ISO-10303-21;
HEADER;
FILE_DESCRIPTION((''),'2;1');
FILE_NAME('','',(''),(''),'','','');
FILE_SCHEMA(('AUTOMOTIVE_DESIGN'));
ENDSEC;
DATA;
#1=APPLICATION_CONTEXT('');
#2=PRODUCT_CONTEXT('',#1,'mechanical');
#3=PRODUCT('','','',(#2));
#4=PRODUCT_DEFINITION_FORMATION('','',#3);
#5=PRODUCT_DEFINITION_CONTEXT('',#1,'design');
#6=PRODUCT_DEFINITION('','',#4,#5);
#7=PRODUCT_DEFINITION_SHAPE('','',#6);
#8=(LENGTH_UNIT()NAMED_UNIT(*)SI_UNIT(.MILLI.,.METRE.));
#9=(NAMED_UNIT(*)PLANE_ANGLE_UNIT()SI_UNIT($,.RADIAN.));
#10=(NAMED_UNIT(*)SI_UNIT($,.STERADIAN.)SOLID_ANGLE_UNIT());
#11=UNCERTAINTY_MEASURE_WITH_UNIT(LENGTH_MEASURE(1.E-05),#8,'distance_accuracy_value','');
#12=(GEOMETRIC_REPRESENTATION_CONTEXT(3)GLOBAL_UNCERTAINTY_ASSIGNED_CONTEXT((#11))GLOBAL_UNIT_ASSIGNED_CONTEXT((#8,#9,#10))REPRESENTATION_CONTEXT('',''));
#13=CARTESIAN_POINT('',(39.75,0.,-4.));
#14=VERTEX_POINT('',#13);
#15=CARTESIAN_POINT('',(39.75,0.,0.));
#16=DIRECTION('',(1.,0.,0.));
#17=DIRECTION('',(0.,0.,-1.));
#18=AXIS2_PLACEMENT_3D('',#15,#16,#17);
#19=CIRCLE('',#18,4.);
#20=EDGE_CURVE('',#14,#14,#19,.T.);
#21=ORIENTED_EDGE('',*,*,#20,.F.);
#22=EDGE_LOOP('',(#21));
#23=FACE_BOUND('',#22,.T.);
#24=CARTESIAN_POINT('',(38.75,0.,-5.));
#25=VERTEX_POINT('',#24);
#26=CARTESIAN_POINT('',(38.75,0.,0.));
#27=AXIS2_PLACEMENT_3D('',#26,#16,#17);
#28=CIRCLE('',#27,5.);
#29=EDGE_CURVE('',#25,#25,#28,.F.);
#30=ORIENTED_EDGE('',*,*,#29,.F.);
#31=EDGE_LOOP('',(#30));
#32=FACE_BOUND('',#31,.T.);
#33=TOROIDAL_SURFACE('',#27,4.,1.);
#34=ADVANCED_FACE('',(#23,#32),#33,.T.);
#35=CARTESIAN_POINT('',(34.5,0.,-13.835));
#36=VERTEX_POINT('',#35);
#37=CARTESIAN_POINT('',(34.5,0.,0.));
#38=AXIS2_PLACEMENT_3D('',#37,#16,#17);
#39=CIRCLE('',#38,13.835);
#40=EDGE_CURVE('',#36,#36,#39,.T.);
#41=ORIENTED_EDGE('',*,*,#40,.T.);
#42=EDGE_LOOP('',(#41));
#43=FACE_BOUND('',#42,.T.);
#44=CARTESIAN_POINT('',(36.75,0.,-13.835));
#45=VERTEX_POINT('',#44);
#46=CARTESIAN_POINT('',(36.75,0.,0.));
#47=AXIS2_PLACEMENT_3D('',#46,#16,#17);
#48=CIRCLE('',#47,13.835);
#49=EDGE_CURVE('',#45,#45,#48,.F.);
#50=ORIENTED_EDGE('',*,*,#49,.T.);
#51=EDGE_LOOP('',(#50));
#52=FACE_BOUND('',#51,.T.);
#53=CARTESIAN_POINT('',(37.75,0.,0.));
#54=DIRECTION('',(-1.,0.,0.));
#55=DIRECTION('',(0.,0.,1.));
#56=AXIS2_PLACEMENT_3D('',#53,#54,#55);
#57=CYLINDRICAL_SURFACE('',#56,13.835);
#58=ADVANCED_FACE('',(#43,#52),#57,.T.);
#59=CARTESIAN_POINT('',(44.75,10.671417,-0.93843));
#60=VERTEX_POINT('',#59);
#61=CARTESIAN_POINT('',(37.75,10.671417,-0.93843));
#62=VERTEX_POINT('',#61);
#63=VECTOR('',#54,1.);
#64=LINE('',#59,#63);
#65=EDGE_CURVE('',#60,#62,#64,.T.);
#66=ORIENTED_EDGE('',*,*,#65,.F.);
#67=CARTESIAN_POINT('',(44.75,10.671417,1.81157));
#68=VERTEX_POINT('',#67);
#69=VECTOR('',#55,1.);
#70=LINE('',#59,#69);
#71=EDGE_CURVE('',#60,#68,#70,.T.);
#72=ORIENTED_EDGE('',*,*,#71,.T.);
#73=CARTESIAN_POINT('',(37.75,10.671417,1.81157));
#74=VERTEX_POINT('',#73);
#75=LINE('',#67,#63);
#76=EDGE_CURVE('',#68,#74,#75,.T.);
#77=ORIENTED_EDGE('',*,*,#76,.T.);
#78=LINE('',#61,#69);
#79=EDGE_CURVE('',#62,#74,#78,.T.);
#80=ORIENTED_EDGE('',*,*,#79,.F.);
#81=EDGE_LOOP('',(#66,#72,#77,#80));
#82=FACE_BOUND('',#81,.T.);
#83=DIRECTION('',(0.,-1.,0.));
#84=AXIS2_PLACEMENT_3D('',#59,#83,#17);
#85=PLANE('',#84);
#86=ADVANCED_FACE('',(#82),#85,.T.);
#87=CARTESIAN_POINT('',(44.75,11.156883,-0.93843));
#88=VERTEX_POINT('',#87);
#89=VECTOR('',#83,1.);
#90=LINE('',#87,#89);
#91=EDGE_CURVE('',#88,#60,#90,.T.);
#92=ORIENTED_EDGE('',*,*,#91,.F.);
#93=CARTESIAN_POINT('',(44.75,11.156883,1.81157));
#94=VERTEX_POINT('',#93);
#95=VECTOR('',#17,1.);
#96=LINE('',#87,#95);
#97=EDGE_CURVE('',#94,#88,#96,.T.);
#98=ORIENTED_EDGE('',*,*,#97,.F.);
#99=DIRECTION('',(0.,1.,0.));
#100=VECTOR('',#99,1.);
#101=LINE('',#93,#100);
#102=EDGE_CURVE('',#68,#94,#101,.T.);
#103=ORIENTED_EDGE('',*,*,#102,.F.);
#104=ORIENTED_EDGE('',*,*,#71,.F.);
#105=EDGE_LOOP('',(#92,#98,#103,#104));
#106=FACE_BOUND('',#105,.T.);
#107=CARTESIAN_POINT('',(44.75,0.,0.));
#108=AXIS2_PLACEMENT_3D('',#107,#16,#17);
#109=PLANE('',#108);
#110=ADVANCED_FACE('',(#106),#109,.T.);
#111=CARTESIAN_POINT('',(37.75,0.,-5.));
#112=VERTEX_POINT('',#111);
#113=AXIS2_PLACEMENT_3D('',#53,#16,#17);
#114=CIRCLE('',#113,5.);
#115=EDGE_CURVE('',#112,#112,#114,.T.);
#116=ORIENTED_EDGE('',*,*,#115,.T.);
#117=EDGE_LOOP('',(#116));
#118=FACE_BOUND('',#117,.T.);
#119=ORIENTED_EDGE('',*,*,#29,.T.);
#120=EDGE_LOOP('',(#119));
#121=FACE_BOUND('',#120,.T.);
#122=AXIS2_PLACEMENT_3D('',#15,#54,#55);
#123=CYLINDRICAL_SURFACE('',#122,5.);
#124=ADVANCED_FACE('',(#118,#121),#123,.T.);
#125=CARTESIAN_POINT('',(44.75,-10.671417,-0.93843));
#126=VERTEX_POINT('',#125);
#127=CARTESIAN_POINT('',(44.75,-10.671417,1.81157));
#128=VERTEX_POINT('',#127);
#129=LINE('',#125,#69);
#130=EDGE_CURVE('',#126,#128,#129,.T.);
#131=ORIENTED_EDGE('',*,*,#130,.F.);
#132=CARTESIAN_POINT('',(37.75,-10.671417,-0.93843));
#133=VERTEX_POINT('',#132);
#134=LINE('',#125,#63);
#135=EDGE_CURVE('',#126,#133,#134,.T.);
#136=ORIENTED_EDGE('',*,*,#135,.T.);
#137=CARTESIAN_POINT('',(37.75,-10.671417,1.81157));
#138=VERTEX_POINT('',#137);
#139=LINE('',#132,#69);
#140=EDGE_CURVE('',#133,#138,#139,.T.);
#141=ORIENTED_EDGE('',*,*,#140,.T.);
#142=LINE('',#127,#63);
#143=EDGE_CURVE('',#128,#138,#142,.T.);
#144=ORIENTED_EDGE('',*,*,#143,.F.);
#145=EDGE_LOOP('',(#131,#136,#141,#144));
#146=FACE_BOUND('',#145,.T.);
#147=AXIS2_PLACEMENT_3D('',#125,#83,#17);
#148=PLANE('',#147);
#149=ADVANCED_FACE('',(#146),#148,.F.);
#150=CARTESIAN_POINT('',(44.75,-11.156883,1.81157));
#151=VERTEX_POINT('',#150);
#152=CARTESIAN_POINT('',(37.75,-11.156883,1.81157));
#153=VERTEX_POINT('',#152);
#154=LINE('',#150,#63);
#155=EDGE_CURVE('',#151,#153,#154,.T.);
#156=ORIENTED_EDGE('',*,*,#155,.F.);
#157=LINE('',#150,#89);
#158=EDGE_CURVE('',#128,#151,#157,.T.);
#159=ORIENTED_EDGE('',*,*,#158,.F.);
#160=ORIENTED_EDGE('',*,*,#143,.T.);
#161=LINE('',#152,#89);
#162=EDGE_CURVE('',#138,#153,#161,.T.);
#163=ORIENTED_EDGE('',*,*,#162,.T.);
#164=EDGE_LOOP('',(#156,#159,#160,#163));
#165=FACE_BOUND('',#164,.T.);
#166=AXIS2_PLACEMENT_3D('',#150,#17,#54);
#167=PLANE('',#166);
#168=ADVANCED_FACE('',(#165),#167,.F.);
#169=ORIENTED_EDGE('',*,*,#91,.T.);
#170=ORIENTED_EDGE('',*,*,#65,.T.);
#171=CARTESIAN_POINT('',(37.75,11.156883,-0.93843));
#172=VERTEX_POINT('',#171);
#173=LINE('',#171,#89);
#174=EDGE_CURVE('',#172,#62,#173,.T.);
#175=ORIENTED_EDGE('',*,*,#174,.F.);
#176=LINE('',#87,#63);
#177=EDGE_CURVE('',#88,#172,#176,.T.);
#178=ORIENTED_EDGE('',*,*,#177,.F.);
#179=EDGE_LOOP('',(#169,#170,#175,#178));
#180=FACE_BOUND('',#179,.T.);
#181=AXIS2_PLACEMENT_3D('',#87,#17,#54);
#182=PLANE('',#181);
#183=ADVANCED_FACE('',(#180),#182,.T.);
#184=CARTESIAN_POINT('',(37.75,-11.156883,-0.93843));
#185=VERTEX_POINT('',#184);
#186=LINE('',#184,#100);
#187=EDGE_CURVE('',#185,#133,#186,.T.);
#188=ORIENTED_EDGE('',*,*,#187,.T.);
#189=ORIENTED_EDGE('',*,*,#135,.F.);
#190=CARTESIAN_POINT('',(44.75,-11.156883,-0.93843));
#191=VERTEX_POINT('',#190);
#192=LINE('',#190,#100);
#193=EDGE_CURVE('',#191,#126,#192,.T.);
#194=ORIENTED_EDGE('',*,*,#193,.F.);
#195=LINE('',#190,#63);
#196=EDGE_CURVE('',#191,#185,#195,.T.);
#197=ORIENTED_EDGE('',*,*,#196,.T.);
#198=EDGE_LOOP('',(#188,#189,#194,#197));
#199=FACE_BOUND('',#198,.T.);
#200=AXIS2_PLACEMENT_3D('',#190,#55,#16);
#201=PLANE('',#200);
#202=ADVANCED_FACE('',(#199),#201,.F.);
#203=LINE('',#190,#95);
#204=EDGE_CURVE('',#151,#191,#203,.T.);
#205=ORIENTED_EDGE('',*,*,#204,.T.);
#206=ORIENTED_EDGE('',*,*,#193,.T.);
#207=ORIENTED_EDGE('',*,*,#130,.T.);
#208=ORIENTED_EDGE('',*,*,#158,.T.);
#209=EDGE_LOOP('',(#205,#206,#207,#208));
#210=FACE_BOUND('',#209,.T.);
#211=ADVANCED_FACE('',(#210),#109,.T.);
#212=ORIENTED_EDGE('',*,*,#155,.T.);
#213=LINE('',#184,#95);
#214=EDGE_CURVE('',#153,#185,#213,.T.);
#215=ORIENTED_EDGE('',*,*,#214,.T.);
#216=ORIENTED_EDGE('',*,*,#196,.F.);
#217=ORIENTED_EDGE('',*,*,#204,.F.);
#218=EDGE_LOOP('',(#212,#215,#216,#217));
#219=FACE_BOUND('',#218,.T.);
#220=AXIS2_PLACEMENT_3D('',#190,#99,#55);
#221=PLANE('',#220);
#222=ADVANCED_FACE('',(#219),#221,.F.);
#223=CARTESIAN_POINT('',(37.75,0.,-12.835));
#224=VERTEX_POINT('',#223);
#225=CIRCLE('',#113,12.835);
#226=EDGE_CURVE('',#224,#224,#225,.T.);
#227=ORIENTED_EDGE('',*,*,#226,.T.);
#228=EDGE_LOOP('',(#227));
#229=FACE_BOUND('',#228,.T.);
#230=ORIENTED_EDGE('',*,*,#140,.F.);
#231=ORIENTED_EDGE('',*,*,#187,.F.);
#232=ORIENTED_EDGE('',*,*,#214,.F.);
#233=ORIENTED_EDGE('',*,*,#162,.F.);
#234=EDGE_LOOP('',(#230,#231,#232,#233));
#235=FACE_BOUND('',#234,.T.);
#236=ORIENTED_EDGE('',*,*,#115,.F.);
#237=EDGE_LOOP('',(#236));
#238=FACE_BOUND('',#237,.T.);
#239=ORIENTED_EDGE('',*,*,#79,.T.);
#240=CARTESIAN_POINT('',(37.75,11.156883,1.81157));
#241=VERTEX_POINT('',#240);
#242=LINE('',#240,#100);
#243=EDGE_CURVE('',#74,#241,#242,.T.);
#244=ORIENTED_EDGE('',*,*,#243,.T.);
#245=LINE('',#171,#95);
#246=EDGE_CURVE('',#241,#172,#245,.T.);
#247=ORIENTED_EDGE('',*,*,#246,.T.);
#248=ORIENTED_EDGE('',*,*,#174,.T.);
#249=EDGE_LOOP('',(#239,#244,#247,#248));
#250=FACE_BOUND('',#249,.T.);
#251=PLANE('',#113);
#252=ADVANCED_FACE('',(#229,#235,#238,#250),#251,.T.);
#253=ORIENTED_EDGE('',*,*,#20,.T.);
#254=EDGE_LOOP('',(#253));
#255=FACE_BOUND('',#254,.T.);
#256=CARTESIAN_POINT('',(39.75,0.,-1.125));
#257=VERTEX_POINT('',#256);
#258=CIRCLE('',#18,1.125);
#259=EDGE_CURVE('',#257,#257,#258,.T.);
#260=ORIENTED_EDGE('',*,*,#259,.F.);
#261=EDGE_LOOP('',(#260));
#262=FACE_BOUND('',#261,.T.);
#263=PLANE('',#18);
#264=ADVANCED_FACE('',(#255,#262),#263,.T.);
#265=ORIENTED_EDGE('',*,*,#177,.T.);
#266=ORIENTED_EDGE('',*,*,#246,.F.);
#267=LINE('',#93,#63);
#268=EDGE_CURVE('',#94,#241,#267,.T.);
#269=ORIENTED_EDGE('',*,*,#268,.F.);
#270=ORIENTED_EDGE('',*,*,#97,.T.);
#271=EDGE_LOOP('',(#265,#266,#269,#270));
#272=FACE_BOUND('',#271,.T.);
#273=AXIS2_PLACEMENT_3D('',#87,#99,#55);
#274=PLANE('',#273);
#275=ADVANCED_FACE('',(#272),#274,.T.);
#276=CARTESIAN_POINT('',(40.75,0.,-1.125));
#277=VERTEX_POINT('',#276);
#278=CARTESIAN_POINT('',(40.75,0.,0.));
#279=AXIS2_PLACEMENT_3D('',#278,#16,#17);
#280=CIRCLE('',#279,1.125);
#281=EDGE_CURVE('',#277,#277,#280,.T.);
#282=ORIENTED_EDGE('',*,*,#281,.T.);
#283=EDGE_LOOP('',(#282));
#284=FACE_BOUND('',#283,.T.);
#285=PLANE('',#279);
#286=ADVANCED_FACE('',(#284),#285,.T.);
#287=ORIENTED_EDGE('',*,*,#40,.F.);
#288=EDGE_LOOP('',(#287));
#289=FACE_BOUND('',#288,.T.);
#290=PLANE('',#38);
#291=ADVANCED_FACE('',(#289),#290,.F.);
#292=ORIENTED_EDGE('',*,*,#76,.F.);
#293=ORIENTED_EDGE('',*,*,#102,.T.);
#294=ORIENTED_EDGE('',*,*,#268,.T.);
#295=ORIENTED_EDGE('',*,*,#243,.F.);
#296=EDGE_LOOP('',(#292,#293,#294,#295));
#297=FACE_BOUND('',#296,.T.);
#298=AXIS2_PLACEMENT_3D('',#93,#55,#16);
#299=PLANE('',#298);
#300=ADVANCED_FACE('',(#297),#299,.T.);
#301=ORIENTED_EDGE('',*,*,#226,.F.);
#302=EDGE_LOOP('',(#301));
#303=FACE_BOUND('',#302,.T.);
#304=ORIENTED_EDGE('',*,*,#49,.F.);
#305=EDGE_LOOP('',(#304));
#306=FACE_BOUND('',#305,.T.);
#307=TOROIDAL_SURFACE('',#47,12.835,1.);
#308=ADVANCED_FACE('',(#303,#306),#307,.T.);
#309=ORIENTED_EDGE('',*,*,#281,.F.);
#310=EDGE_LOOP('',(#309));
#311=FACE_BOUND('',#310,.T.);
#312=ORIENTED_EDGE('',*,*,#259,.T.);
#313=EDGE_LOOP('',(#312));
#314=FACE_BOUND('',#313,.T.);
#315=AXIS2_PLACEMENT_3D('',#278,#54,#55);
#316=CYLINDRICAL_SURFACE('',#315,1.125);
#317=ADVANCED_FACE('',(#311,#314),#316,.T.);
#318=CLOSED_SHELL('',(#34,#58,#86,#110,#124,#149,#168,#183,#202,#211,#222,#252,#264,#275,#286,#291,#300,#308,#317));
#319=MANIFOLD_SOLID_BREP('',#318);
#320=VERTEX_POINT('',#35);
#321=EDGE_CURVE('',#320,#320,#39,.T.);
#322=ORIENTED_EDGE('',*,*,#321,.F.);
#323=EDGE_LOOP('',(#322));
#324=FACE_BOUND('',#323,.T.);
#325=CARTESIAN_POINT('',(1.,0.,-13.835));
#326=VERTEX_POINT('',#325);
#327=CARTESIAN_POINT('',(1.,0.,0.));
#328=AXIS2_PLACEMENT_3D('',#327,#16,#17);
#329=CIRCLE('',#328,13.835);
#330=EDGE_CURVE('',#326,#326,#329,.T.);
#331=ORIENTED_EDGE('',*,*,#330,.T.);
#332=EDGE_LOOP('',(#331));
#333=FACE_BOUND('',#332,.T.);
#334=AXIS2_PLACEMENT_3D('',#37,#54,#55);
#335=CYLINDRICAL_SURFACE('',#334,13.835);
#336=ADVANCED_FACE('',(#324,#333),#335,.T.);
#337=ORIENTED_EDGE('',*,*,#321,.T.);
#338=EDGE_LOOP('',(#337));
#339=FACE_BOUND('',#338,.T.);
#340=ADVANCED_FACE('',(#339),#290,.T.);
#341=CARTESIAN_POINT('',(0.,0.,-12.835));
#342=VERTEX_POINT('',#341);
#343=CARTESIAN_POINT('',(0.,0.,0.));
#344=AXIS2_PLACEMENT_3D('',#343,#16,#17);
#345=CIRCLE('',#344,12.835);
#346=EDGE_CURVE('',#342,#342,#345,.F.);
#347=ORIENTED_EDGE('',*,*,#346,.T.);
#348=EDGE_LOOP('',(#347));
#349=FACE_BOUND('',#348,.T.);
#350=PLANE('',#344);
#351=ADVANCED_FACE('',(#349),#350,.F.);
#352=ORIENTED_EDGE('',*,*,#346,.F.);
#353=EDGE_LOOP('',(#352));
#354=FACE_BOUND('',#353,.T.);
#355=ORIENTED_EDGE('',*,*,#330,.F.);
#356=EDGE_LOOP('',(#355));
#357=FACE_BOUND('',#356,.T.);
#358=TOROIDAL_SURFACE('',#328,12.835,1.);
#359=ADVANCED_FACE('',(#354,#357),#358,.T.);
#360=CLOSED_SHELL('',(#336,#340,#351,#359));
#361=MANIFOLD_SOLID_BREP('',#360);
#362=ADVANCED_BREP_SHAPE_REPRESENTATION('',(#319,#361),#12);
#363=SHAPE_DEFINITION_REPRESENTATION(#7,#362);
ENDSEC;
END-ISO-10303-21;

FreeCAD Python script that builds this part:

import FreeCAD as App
import Part
import Sketcher
from FreeCAD import Vector
Q = App.Units.Quantity


def edges_at(feature, points):
    """Names of the edges that pass closest to the given points."""
    edges = feature.Shape.Edges
    near = lambda p: min(range(len(edges)), key=lambda i: edges[i].distToShape(Part.Vertex(*p))[0])
    return sorted({f"Edge{near(p) + 1}" for p in points})


def add_polygon(sketch, points):
    """Adds a closed chain of lines whose ends are joined by coincident constraints."""
    first, n = sketch.GeometryCount, len(points)
    for a, b in zip(points, points[1:] + points[:1]):
        sketch.addGeometry(Part.LineSegment(App.Vector(*a, 0), App.Vector(*b, 0)), False)
    for i in range(n):
        sketch.addConstraint(Sketcher.Constraint("Coincident", first + i, 2, first + (i + 1) % n, 1))

doc = App.newDocument("Part")
body = doc.addObject("PartDesign::Body", "Body")

# Sketch on YZ plane
sketch1 = doc.addObject("Sketcher::SketchObject", "Sketch")
body.addObject(sketch1)
sketch1.AttachmentSupport = (doc.YZ_Plane, [""])
sketch1.MapMode = "FlatFace"
sketch1.addGeometry(Part.Circle(Vector(0, 0, 0), Vector(0, 0, 1), 14), False)
sketch1.addConstraint([
    Sketcher.Constraint("Coincident", 0, 3, -1, 1),
    Sketcher.Constraint("Diameter", 0, Q("27.67 mm")),
])
pad1 = doc.addObject("PartDesign::Pad", "Pad")
body.addObject(pad1)
pad1.Profile = sketch1
pad1.Length = 34.5
doc.recompute()

fillet = doc.addObject("PartDesign::Fillet", "Fillet")
body.addObject(fillet)
fillet.Base = (pad1, edges_at(pad1, [(0, 0, 13.835)]))
fillet.Radius = 1
body2 = doc.addObject("PartDesign::Body", "Body001")

# Sketch on YZ plane
sketch2 = doc.addObject("Sketcher::SketchObject", "Sketch001")
body2.addObject(sketch2)
sketch2.AttachmentSupport = (doc.getObject("YZ_Plane001"), [""])
sketch2.MapMode = "FlatFace"
sketch2.AttachmentOffset = App.Placement(Vector(0, 0, 34.5), App.Rotation())
sketch2.addGeometry(Part.Circle(Vector(0, 0, 0), Vector(0, 0, 1), 14), False)
sketch2.addConstraint([
    Sketcher.Constraint("Coincident", 0, 3, -1, 1),
    Sketcher.Constraint("Diameter", 0, Q("27.67 mm")),
])
pad2 = doc.addObject("PartDesign::Pad", "Pad001")
body2.addObject(pad2)
pad2.Profile = sketch2
pad2.Length = 3.25

# Sketch on YZ plane
sketch3 = doc.addObject("Sketcher::SketchObject", "Sketch002")
body2.addObject(sketch3)
sketch3.AttachmentSupport = (doc.getObject("YZ_Plane001"), [""])
sketch3.MapMode = "FlatFace"
sketch3.AttachmentOffset = App.Placement(Vector(0, 0, 37.75), App.Rotation())
sketch3.addGeometry(Part.Circle(Vector(0, 0, 0), Vector(0, 0, 1), 5), False)
sketch3.addConstraint([
    Sketcher.Constraint("Coincident", 0, 3, -1, 1),
    Sketcher.Constraint("Diameter", 0, Q("10 mm")),
])
pad3 = doc.addObject("PartDesign::Pad", "Pad002")
body2.addObject(pad3)
pad3.Profile = sketch3
pad3.Length = 2

# Sketch on YZ plane
sketch4 = doc.addObject("Sketcher::SketchObject", "Sketch003")
body2.addObject(sketch4)
sketch4.AttachmentSupport = (doc.getObject("YZ_Plane001"), [""])
sketch4.MapMode = "FlatFace"
sketch4.AttachmentOffset = App.Placement(Vector(0, 0, 39.75), App.Rotation())
sketch4.addGeometry(Part.Circle(Vector(0, 0, 0), Vector(0, 0, 1), 1.1), False)
sketch4.addConstraint([
    Sketcher.Constraint("Coincident", 0, 3, -1, 1),
    Sketcher.Constraint("Diameter", 0, Q("2.25 mm")),
])
pad4 = doc.addObject("PartDesign::Pad", "Pad003")
body2.addObject(pad4)
pad4.Profile = sketch4
pad4.Length = 1
doc.recompute()

fillet2 = doc.addObject("PartDesign::Fillet", "Fillet001")
body2.addObject(fillet2)
fillet2.Base = (pad4, edges_at(pad4, [(37.75, 0, 13.835), (39.75, 0, 5)]))
fillet2.Radius = 1

# Sketch on YZ plane
sketch5 = doc.addObject("Sketcher::SketchObject", "Sketch004")
body2.addObject(sketch5)
sketch5.AttachmentSupport = (doc.getObject("YZ_Plane001"), [""])
sketch5.MapMode = "FlatFace"
sketch5.AttachmentOffset = App.Placement(Vector(0, 0, 37.75), App.Rotation())
add_polygon(sketch5, [(-10.67, 1.81), (-11.16, 1.81), (-11.16, -0.94), (-10.67, -0.94)])  # lines 0-3
sketch5.addConstraint([
    Sketcher.Constraint("Horizontal", 0),
    Sketcher.Constraint("Vertical", 1),
    Sketcher.Constraint("Horizontal", 2),
    Sketcher.Constraint("Vertical", 3),
    Sketcher.Constraint("DistanceY", 1, 2, 1, 1, Q("2.75 mm")),
    Sketcher.Constraint("DistanceX", 0, 2, 0, 1, Q("0.485467 mm")),
    Sketcher.Constraint("DistanceY", -1, 1, 0, 2, Q("1.81157 mm")),
    Sketcher.Constraint("DistanceX", 0, 2, -1, 1, Q("11.156883 mm")),
])
pad5 = doc.addObject("PartDesign::Pad", "Pad004")
body2.addObject(pad5)
pad5.Profile = sketch5
pad5.Length = 7
doc.recompute()

mirrored = doc.addObject("PartDesign::Mirrored", "Mirrored")
body2.addObject(mirrored)
mirrored.Originals = [pad5]
mirrored.MirrorPlane = (doc.getObject("XZ_Plane001"), [""])
body2.Tip = mirrored

doc.recompute()
